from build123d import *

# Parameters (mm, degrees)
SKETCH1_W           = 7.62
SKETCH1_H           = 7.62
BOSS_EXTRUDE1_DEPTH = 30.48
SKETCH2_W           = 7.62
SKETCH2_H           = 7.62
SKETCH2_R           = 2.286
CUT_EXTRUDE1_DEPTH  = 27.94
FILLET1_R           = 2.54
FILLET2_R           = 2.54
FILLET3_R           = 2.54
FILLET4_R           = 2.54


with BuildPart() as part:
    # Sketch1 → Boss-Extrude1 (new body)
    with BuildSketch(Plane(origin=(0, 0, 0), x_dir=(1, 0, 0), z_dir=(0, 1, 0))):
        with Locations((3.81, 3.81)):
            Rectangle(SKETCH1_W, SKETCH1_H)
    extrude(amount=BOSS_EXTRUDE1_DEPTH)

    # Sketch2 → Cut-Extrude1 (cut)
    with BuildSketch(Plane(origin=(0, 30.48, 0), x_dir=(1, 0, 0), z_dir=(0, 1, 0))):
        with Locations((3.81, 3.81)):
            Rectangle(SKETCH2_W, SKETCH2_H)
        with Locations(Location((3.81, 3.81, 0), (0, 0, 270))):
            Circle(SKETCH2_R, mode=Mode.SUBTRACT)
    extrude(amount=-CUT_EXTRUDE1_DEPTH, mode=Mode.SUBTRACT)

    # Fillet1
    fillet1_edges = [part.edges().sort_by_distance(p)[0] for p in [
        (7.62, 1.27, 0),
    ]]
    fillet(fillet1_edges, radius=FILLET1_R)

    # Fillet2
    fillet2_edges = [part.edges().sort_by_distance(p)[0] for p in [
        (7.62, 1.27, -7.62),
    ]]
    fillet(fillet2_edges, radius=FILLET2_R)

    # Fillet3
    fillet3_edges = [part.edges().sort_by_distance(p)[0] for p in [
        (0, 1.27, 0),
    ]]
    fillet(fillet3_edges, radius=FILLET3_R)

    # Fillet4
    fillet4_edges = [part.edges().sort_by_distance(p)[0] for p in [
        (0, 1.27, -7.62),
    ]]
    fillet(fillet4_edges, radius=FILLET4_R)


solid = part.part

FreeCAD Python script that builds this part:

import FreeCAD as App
import Part
import Sketcher
from FreeCAD import Vector
Q = App.Units.Quantity


def edges_at(feature, points):
    """Names of the edges that pass closest to the given points."""
    edges = feature.Shape.Edges
    near = lambda p: min(range(len(edges)), key=lambda i: edges[i].distToShape(Part.Vertex(*p))[0])
    return sorted({f"Edge{near(p) + 1}" for p in points})

doc = App.newDocument("Part")
body = doc.addObject("PartDesign::Body", "Body")

sketch1 = body.newObject("Sketcher::SketchObject", "Sketch")
sketch1.AttachmentSupport = (doc.getObject("XZ_Plane"), [""])
sketch1.MapMode = "FlatFace"
sketch1.addGeometry(Part.LineSegment(Vector(0, -8, 0), Vector(0, 0, 0)), False)
sketch1.addGeometry(Part.LineSegment(Vector(0, 0, 0), Vector(8, 0, 0)), False)
sketch1.addGeometry(Part.LineSegment(Vector(8, 0, 0), Vector(8, -8, 0)), False)
sketch1.addGeometry(Part.LineSegment(Vector(8, -8, 0), Vector(0, -8, 0)), False)
sketch1.addConstraint(Sketcher.Constraint("Coincident", 0, 2, 1, 1))
sketch1.addConstraint(Sketcher.Constraint("Coincident", 1, 2, 2, 1))
sketch1.addConstraint(Sketcher.Constraint("Coincident", 2, 2, 3, 1))
sketch1.addConstraint(Sketcher.Constraint("Coincident", 3, 2, 0, 1))
sketch1.addConstraint(Sketcher.Constraint("Vertical", 0))
sketch1.addConstraint(Sketcher.Constraint("Horizontal", 1))
sketch1.addConstraint(Sketcher.Constraint("Vertical", 2))
sketch1.addConstraint(Sketcher.Constraint("Horizontal", 3))
sketch1.addConstraint(Sketcher.Constraint("Coincident", 0, 2, -1, 1))
sketch1.addConstraint(Sketcher.Constraint("Equal", 3, 0))
sketch1.addConstraint(Sketcher.Constraint("DistanceX", 1, 1, 1, 2, Q("0.3 in")))
pad1 = body.newObject("PartDesign::Pad", "Pad")
pad1.Profile = sketch1
pad1.Length = Q("1.2 in")
pad1.Reversed = True

sketch2 = body.newObject("Sketcher::SketchObject", "Sketch001")
sketch2.AttachmentSupport = (doc.getObject("XZ_Plane"), [""])
sketch2.MapMode = "FlatFace"
sketch2.AttachmentOffset = App.Placement(Vector(0, 0, -1.2 * 25.4), App.Rotation())
sketch2.addGeometry(Part.LineSegment(Vector(0, -7.6, 0), Vector(0, 0, 0)), False)
sketch2.addGeometry(Part.LineSegment(Vector(0, 0, 0), Vector(7.6, 0, 0)), False)
sketch2.addGeometry(Part.LineSegment(Vector(7.6, 0, 0), Vector(7.6, -7.6, 0)), False)
sketch2.addGeometry(Part.LineSegment(Vector(7.6, -7.6, 0), Vector(0, -7.6, 0)), False)
sketch2.addGeometry(Part.Circle(Vector(3.8, -3.8, 0), Vector(0, 0, 1), 2.3), False)
sketch2.addConstraint(Sketcher.Constraint("Coincident", 0, 2, 1, 1))
sketch2.addConstraint(Sketcher.Constraint("Coincident", 1, 2, 2, 1))
sketch2.addConstraint(Sketcher.Constraint("Coincident", 2, 2, 3, 1))
sketch2.addConstraint(Sketcher.Constraint("Coincident", 3, 2, 0, 1))
sketch2.addConstraint(Sketcher.Constraint("Vertical", 0))
sketch2.addConstraint(Sketcher.Constraint("Horizontal", 1))
sketch2.addConstraint(Sketcher.Constraint("Vertical", 2))
sketch2.addConstraint(Sketcher.Constraint("Horizontal", 3))
sketch2.addConstraint(Sketcher.Constraint("Coincident", 0, 2, -1, 1))
sketch2.addConstraint(Sketcher.Constraint("Equal", 3, 0))
sketch2.addConstraint(Sketcher.Constraint("Diameter", 4, Q("0.18 in")))
sketch2.addConstraint(Sketcher.Constraint("DistanceX", 1, 1, 1, 2, Q("0.3 in")))
sketch2.addConstraint(Sketcher.Constraint("DistanceX", -1, 1, 4, 3, Q("0.15 in")))
sketch2.addConstraint(Sketcher.Constraint("DistanceY", 4, 3, -1, 1, Q("0.15 in")))
pocket1 = body.newObject("PartDesign::Pocket", "Pocket")
pocket1.Profile = sketch2
pocket1.Length = Q("1.1 in")
pocket1.Reversed = True
doc.recompute()

fillet = body.newObject("PartDesign::Fillet", "Fillet")
fillet.Base = (pocket1, edges_at(pocket1, [(7.62, 1.27, 0)]))
fillet.Radius = Q("0.1 in")
doc.recompute()

fillet2 = body.newObject("PartDesign::Fillet", "Fillet001")
fillet2.Base = (fillet, edges_at(fillet, [(7.62, 1.27, -7.62)]))
fillet2.Radius = Q("0.1 in")
doc.recompute()

fillet3 = body.newObject("PartDesign::Fillet", "Fillet002")
fillet3.Base = (fillet2, edges_at(fillet2, [(0, 1.27, 0)]))
fillet3.Radius = Q("0.1 in")
doc.recompute()

fillet4 = body.newObject("PartDesign::Fillet", "Fillet003")
fillet4.Base = (fillet3, edges_at(fillet3, [(0, 1.27, -7.62)]))
fillet4.Radius = Q("0.1 in")

doc.recompute()
